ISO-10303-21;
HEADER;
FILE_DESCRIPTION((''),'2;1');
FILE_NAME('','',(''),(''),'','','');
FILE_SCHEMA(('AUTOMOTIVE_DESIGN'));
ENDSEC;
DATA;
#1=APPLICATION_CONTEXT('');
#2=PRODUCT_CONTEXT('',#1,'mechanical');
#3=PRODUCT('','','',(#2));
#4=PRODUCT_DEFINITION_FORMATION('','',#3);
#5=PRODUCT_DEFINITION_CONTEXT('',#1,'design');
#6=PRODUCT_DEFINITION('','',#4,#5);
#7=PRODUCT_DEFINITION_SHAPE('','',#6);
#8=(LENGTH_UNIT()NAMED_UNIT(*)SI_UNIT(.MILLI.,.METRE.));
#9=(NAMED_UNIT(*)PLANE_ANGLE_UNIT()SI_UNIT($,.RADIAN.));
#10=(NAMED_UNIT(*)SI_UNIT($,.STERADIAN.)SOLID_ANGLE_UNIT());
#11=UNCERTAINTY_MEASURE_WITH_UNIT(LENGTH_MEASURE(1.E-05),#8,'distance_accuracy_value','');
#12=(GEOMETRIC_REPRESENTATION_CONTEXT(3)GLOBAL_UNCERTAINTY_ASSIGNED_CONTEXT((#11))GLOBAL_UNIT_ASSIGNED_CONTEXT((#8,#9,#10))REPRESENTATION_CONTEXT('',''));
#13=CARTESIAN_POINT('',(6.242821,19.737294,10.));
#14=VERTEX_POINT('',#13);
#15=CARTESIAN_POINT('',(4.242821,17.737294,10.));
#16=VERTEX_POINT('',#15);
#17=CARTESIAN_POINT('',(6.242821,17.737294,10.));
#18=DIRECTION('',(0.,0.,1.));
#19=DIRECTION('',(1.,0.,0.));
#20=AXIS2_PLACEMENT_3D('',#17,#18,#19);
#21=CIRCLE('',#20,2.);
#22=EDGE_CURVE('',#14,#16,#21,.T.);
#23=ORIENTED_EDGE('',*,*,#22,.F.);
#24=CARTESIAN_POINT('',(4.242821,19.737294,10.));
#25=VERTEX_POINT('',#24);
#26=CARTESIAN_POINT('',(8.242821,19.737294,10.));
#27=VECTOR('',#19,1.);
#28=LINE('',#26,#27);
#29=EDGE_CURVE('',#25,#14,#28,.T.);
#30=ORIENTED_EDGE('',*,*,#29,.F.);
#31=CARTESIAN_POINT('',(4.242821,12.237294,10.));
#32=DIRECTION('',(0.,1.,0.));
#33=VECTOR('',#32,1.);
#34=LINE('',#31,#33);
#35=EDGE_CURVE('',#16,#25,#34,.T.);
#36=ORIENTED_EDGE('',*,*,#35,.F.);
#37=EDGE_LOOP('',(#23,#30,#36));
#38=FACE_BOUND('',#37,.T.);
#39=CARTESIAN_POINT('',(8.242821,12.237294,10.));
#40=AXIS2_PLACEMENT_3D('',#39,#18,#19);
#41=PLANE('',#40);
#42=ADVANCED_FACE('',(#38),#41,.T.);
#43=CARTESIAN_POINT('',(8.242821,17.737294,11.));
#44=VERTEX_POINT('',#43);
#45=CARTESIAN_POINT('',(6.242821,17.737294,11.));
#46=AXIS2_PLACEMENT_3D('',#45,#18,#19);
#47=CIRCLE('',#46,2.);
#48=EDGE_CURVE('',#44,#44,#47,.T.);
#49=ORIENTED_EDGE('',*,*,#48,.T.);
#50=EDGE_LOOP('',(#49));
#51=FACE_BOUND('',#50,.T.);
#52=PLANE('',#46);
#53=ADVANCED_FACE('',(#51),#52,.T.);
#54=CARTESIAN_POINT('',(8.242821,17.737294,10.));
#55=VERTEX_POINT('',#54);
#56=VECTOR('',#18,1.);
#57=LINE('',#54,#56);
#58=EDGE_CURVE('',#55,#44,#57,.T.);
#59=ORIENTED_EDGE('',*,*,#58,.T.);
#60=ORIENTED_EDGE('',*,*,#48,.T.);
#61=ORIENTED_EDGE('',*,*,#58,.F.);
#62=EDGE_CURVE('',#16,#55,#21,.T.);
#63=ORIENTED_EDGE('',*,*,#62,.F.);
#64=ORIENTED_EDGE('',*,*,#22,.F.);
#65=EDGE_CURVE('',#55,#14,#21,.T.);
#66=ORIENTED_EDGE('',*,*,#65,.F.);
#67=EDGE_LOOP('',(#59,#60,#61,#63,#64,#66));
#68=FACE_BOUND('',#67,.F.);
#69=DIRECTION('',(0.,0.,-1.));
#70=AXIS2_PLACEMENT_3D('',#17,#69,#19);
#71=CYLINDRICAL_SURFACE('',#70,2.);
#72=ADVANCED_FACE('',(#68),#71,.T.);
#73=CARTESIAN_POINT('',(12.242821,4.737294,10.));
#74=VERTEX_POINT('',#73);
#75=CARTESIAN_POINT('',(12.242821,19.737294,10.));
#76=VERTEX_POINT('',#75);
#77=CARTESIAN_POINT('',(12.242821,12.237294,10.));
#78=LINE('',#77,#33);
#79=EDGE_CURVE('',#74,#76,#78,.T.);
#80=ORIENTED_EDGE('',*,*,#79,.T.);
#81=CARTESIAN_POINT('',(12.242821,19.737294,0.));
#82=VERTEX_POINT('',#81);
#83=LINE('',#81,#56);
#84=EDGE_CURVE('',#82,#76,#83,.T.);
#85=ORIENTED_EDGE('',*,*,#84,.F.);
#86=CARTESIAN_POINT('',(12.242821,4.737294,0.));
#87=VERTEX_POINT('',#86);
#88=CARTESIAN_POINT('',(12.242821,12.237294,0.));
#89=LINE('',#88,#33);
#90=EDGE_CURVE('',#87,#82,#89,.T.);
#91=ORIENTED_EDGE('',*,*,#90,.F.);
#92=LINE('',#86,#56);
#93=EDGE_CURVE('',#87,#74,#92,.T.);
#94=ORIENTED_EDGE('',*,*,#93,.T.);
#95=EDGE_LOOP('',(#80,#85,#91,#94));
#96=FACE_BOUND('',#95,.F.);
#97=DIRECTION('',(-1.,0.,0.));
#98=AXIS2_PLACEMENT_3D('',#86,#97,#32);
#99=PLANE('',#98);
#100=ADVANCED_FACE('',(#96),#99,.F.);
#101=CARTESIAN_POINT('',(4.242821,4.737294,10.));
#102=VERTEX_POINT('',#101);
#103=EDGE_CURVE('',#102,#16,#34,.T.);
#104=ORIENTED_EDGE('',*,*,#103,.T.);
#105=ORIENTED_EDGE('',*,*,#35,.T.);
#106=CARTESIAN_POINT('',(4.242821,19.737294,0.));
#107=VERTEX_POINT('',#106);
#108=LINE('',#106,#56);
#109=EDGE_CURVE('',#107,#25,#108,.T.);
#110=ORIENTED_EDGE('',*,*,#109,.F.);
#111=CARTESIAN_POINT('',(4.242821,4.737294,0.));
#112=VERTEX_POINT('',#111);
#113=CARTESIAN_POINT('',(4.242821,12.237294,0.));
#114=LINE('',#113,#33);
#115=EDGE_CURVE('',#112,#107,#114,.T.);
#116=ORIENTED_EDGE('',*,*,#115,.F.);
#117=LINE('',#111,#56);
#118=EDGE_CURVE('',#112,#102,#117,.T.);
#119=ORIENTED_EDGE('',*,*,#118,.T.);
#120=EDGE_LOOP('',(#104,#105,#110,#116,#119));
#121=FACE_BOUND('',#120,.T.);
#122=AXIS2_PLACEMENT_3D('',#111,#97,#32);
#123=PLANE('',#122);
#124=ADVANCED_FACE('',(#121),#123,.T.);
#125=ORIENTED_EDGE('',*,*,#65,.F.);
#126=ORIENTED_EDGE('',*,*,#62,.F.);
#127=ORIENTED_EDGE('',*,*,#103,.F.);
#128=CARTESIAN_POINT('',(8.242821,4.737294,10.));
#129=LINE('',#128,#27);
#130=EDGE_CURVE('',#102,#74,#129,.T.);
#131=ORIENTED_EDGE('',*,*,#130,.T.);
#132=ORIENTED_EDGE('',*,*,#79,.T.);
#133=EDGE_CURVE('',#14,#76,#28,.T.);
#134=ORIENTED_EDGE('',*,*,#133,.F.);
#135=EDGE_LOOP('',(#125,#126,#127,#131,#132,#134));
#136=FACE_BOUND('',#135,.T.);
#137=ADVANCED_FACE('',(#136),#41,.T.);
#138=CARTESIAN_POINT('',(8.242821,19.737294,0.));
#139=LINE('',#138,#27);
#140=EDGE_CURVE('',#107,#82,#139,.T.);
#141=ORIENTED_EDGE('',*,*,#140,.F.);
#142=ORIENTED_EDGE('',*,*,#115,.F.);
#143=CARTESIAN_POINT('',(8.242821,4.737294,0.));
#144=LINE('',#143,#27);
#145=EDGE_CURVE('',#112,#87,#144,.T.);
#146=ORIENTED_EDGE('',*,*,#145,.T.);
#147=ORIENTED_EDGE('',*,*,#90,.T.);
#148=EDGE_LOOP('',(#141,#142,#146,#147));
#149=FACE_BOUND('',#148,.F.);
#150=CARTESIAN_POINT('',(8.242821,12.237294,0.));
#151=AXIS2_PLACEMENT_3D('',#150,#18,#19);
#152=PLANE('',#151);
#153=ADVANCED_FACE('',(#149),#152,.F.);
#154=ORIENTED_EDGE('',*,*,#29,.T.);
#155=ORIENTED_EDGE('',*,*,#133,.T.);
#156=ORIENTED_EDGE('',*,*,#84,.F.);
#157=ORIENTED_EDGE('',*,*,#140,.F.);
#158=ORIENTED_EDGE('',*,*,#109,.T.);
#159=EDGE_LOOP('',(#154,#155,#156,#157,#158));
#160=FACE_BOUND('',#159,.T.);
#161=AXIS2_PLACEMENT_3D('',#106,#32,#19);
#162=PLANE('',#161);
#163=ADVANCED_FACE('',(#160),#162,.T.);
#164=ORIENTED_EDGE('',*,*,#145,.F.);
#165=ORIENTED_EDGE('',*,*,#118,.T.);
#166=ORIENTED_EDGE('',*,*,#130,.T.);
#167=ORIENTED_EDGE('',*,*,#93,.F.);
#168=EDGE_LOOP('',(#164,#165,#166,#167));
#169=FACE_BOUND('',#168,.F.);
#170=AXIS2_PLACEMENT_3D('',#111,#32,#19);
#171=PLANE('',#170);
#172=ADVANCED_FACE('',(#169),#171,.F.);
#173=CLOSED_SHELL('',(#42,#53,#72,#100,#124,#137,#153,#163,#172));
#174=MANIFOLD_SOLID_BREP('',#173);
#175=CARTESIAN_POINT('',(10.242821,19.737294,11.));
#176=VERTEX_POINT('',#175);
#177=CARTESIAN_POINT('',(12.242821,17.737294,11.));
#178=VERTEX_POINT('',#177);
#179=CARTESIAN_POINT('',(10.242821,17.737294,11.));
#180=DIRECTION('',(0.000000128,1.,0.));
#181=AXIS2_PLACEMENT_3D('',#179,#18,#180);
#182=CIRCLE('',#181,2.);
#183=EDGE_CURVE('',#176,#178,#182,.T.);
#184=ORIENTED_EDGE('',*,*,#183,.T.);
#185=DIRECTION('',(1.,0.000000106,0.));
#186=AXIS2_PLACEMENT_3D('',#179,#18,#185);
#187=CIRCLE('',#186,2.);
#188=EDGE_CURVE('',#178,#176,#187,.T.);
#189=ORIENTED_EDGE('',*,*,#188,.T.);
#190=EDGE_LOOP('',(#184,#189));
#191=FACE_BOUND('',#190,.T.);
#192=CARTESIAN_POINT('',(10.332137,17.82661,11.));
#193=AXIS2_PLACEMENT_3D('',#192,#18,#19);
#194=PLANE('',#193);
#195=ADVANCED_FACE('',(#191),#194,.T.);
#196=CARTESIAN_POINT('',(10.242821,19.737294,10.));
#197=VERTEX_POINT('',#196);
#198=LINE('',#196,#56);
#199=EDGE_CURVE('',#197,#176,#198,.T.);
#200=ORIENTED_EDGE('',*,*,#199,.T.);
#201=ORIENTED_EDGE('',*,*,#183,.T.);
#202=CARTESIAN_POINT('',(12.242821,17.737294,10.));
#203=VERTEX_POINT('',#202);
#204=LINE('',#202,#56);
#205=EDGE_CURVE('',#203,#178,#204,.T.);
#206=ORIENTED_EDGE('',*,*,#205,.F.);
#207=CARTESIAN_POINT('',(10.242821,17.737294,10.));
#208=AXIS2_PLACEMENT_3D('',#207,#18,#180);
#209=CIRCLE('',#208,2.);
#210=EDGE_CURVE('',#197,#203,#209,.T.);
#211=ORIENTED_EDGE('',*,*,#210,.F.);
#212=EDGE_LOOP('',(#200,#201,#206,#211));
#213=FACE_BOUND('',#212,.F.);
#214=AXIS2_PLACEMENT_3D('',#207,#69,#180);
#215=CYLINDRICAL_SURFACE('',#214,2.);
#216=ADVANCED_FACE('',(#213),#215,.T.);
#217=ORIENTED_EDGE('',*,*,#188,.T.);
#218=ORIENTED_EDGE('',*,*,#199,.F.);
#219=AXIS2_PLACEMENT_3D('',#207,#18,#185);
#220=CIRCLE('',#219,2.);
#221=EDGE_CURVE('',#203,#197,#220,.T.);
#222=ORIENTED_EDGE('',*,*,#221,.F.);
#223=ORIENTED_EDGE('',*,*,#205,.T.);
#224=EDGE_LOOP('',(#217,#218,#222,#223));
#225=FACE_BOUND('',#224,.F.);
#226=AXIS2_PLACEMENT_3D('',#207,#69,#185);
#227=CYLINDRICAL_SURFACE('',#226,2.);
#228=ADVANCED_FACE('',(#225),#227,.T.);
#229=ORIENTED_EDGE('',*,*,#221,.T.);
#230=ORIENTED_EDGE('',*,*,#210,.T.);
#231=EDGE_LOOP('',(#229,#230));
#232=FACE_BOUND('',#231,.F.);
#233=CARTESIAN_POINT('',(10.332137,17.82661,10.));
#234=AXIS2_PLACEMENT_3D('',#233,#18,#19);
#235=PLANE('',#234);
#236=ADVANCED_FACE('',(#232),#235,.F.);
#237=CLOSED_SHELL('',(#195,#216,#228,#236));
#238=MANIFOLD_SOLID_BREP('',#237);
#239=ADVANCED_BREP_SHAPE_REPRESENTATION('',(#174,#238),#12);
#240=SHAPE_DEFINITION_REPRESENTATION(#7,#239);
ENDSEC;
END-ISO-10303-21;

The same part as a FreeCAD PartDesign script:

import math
import FreeCAD as App
import Part
import Sketcher
Q = App.Units.Quantity

doc = App.newDocument("Part")
params = doc.addObject("Spreadsheet::Sheet", "Params")
for row, (alias, value) in enumerate([
    ("sketch1_width", "8 mm"),
    ("sketch1_height", "15 mm"),
    ("pad1_length", "10 mm"),
    ("sketch2_diameter", "4 mm"),
    ("pad2_length", "1 mm"),
    ("sketch3_radius", "2 mm"),
    ("pad3_length", "1 mm"),
], start=1):
    params.set(f"A{row}", alias)
    params.set(f"B{row}", "=" + value)
    params.setAlias(f"B{row}", alias)

body = doc.addObject("PartDesign::Body", "Body")

# Sketch on XY plane
sketch1 = body.newObject("Sketcher::SketchObject", "Sketch")
sketch1.AttachmentSupport = (doc.getObject("XY_Plane"), [""])
sketch1.MapMode = "FlatFace"
sketch1.addGeometry([
    Part.LineSegment(App.Vector(4, 20, 0), App.Vector(4, 5, 0)),
    Part.LineSegment(App.Vector(4, 5, 0), App.Vector(12, 5, 0)),
    Part.LineSegment(App.Vector(12, 5, 0), App.Vector(12, 20, 0)),
    Part.LineSegment(App.Vector(12, 20, 0), App.Vector(4, 20, 0)),
], False)
sketch1.addConstraint([
    Sketcher.Constraint("Coincident", 0, 2, 1, 1),
    Sketcher.Constraint("Coincident", 1, 2, 2, 1),
    Sketcher.Constraint("Coincident", 2, 2, 3, 1),
    Sketcher.Constraint("Coincident", 3, 2, 0, 1),
    Sketcher.Constraint("Vertical", 0),
    Sketcher.Constraint("Horizontal", 1),
    Sketcher.Constraint("Vertical", 2),
    Sketcher.Constraint("Horizontal", 3),
    Sketcher.Constraint("DistanceX", 1, 1, 1, 2, Q("8 mm")),
    Sketcher.Constraint("DistanceY", 0, 2, 0, 1, Q("15 mm")),
    Sketcher.Constraint("DistanceX", -1, 1, 0, 2, Q("4.242821 mm")),
    Sketcher.Constraint("DistanceY", -1, 1, 0, 2, Q("4.737294 mm")),
])
sketch1.setExpression("Constraints[8]", "Params.sketch1_width")
sketch1.setExpression("Constraints[9]", "Params.sketch1_height")
pad1 = body.newObject("PartDesign::Pad", "Pad")
pad1.Profile = sketch1
pad1.setExpression("Length", "Params.pad1_length")

# Sketch on XY plane
sketch2 = body.newObject("Sketcher::SketchObject", "Sketch001")
sketch2.AttachmentSupport = (doc.getObject("XY_Plane"), [""])
sketch2.MapMode = "FlatFace"
sketch2.AttachmentOffset = App.Placement(App.Vector(0, 0, 10), App.Rotation())
sketch2.addGeometry(Part.Circle(App.Vector(6.2, 17.7, 0), App.Vector(0, 0, 1), 2), False)
sketch2.addConstraint([
    Sketcher.Constraint("Diameter", 0, Q("4 mm")),
    Sketcher.Constraint("DistanceX", -1, 1, 0, 3, Q("6.242821 mm")),
    Sketcher.Constraint("DistanceY", -1, 1, 0, 3, Q("17.737294 mm")),
])
sketch2.setExpression("Constraints[0]", "Params.sketch2_diameter")
pad2 = body.newObject("PartDesign::Pad", "Pad001")
pad2.Profile = sketch2
pad2.setExpression("Length", "Params.pad2_length")
body2 = doc.addObject("PartDesign::Body", "Body001")

# Sketch on XY plane
sketch3 = body2.newObject("Sketcher::SketchObject", "Sketch002")
sketch3.AttachmentSupport = (doc.getObject("XY_Plane001"), [""])
sketch3.MapMode = "FlatFace"
sketch3.AttachmentOffset = App.Placement(App.Vector(0, 0, 10), App.Rotation())
sketch3.addGeometry([
    Part.ArcOfCircle(Part.Circle(App.Vector(10.2, 17.7, 0), App.Vector(0, 0, 1), 2), math.radians(90), math.radians(360)),
    Part.ArcOfCircle(Part.Circle(App.Vector(10.2, 17.7, 0), App.Vector(0, 0, 1), 2), math.radians(0), math.radians(90)),
], False)
sketch3.addConstraint([
    Sketcher.Constraint("Tangent", 0, 1, 1, 2),
    Sketcher.Constraint("Coincident", 1, 1, 0, 2),
    Sketcher.Constraint("Horizontal", 0, 3, 1, 1),
    Sketcher.Constraint("Vertical", 1, 3, 0, 1),
    Sketcher.Constraint("Radius", 0, Q("2 mm")),
    Sketcher.Constraint("DistanceX", -1, 1, 0, 3, Q("10.242821 mm")),
    Sketcher.Constraint("DistanceY", -1, 1, 0, 3, Q("17.737294 mm")),
])
sketch3.setExpression("Constraints[4]", "Params.sketch3_radius")
pad3 = body2.newObject("PartDesign::Pad", "Pad002")
pad3.Profile = sketch3
pad3.setExpression("Length", "Params.pad3_length")

doc.recompute()
